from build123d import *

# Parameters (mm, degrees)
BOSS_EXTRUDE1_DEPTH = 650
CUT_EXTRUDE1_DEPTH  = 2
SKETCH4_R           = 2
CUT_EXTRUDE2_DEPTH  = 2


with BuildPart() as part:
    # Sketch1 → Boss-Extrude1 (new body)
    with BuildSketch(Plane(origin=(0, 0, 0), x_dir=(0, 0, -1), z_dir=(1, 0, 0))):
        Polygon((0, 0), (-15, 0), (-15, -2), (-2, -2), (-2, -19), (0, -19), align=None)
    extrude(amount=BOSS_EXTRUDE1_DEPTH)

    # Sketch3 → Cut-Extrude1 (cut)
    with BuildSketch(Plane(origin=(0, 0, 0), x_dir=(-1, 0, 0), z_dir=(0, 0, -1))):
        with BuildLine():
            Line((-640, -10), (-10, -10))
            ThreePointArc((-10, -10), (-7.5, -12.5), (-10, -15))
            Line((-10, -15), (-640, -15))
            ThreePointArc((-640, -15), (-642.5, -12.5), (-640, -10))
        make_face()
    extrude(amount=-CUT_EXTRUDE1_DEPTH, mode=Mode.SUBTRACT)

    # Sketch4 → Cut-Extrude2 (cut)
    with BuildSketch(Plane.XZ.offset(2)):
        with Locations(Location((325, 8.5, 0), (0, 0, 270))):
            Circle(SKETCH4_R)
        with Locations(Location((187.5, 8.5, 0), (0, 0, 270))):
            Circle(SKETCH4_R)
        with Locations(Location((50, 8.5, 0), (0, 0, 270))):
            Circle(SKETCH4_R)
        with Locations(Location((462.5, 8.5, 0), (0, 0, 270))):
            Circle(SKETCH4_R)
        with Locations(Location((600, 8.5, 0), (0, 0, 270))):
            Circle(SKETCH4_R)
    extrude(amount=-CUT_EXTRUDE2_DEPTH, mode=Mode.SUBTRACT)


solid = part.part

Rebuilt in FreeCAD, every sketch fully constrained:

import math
import FreeCAD as App
import Part
import Sketcher
from FreeCAD import Vector
Q = App.Units.Quantity


def add_polygon(sketch, points):
    """Adds a closed chain of lines whose ends are joined by coincident constraints."""
    first, n = sketch.GeometryCount, len(points)
    for a, b in zip(points, points[1:] + points[:1]):
        sketch.addGeometry(Part.LineSegment(App.Vector(*a, 0), App.Vector(*b, 0)), False)
    for i in range(n):
        sketch.addConstraint(Sketcher.Constraint("Coincident", first + i, 2, first + (i + 1) % n, 1))

doc = App.newDocument("Part")
body = doc.addObject("PartDesign::Body", "Body")

sketch1 = body.newObject("Sketcher::SketchObject", "Sketch")
sketch1.AttachmentSupport = (doc.getObject("YZ_Plane"), [""])
sketch1.MapMode = "FlatFace"
add_polygon(sketch1, [(0, 0), (0, 15), (-2, 15), (-2, 2), (-19, 2), (-19, 0)])
sketch1.addConstraint(Sketcher.Constraint("Vertical", 0))
sketch1.addConstraint(Sketcher.Constraint("Horizontal", 1))
sketch1.addConstraint(Sketcher.Constraint("Vertical", 2))
sketch1.addConstraint(Sketcher.Constraint("Horizontal", 3))
sketch1.addConstraint(Sketcher.Constraint("Vertical", 4))
sketch1.addConstraint(Sketcher.Constraint("Horizontal", 5))
sketch1.addConstraint(Sketcher.Constraint("Coincident", 5, 2, -1, 1))
sketch1.addConstraint(Sketcher.Constraint("Equal", 1, 4))
sketch1.addConstraint(Sketcher.Constraint("DistanceX", 1, 2, 1, 1, Q("2 mm")))
sketch1.addConstraint(Sketcher.Constraint("DistanceX", 3, 2, 3, 1, Q("17 mm")))
sketch1.addConstraint(Sketcher.Constraint("DistanceY", 0, 1, 0, 2, Q("15 mm")))
pad1 = body.newObject("PartDesign::Pad", "Pad")
pad1.Profile = sketch1
pad1.Length = 650

sketch2 = body.newObject("Sketcher::SketchObject", "Sketch001")
sketch2.AttachmentSupport = (doc.getObject("XY_Plane"), [""])
sketch2.MapMode = "FlatFace"
sketch2.addGeometry(Part.LineSegment(Vector(10, -10, 0), Vector(640, -10, 0)), False)
sketch2.addGeometry(Part.ArcOfCircle(Part.Circle(Vector(640, -12.5, 0), Vector(0, 0, 1), 2.5), math.radians(-90), math.radians(90)), False)
sketch2.addGeometry(Part.LineSegment(Vector(640, -15, 0), Vector(10, -15, 0)), False)
sketch2.addGeometry(Part.ArcOfCircle(Part.Circle(Vector(10, -12.5, 0), Vector(0, 0, 1), 2.5), math.radians(90), math.radians(270)), False)
sketch2.addConstraint(Sketcher.Constraint("Tangent", 0, 2, 1, 2))
sketch2.addConstraint(Sketcher.Constraint("Tangent", 1, 1, 2, 1))
sketch2.addConstraint(Sketcher.Constraint("Tangent", 2, 2, 3, 2))
sketch2.addConstraint(Sketcher.Constraint("Tangent", 3, 1, 0, 1))
sketch2.addConstraint(Sketcher.Constraint("Horizontal", 0))
sketch2.addConstraint(Sketcher.Constraint("Horizontal", 2))
sketch2.addConstraint(Sketcher.Constraint("Radius", 1, Q("2.5 mm")))
sketch2.addConstraint(Sketcher.Constraint("DistanceX", 0, 1, 0, 2, Q("630 mm")))
sketch2.addConstraint(Sketcher.Constraint("DistanceX", -1, 1, 1, 3, Q("640 mm")))
sketch2.addConstraint(Sketcher.Constraint("DistanceY", 0, 2, -1, 1, Q("10 mm")))
pocket1 = body.newObject("PartDesign::Pocket", "Pocket")
pocket1.Profile = sketch2
pocket1.Length = 2
pocket1.Reversed = True

sketch3 = body.newObject("Sketcher::SketchObject", "Sketch002")
sketch3.AttachmentSupport = (doc.getObject("XZ_Plane"), [""])
sketch3.MapMode = "FlatFace"
sketch3.AttachmentOffset = App.Placement(Vector(0, 0, 2), App.Rotation())
sketch3.addGeometry(Part.Circle(Vector(325, 8.5, 0), Vector(0, 0, 1), 2), False)
sketch3.addGeometry(Part.Circle(Vector(187.5, 8.5, 0), Vector(0, 0, 1), 2), False)
sketch3.addGeometry(Part.Circle(Vector(50, 8.5, 0), Vector(0, 0, 1), 2), False)
sketch3.addGeometry(Part.Circle(Vector(462.5, 8.5, 0), Vector(0, 0, 1), 2), False)
sketch3.addGeometry(Part.Circle(Vector(600, 8.5, 0), Vector(0, 0, 1), 2), False)
sketch3.addConstraint(Sketcher.Constraint("Equal", 0, 1))
sketch3.addConstraint(Sketcher.Constraint("Equal", 1, 2))
sketch3.addConstraint(Sketcher.Constraint("Equal", 2, 3))
sketch3.addConstraint(Sketcher.Constraint("Equal", 3, 4))
sketch3.addConstraint(Sketcher.Constraint("Horizontal", 0, 3, 1, 3))
sketch3.addConstraint(Sketcher.Constraint("Horizontal", 1, 3, 2, 3))
sketch3.addConstraint(Sketcher.Constraint("Horizontal", 2, 3, 3, 3))
sketch3.addConstraint(Sketcher.Constraint("Horizontal", 3, 3, 4, 3))
sketch3.addConstraint(Sketcher.Constraint("Diameter", 0, Q("4 mm")))
sketch3.addConstraint(Sketcher.Constraint("DistanceX", -1, 1, 0, 3, Q("325 mm")))
sketch3.addConstraint(Sketcher.Constraint("DistanceX", -1, 1, 2, 3, Q("50 mm")))
sketch3.addConstraint(Sketcher.Constraint("DistanceX", -1, 1, 4, 3, Q("600 mm")))
sketch3.addConstraint(Sketcher.Constraint("DistanceX", 1, 3, 3, 3, Q("275 mm")))
sketch3.addConstraint(Sketcher.Constraint("DistanceY", -1, 1, 0, 3, Q("8.5 mm")))
sketch3.addConstraint(Sketcher.Constraint("DistanceX", -1, 1, 1, 3, Q("187.5 mm")))
pocket2 = body.newObject("PartDesign::Pocket", "Pocket001")
pocket2.Profile = sketch3
pocket2.Length = 2

doc.recompute()
